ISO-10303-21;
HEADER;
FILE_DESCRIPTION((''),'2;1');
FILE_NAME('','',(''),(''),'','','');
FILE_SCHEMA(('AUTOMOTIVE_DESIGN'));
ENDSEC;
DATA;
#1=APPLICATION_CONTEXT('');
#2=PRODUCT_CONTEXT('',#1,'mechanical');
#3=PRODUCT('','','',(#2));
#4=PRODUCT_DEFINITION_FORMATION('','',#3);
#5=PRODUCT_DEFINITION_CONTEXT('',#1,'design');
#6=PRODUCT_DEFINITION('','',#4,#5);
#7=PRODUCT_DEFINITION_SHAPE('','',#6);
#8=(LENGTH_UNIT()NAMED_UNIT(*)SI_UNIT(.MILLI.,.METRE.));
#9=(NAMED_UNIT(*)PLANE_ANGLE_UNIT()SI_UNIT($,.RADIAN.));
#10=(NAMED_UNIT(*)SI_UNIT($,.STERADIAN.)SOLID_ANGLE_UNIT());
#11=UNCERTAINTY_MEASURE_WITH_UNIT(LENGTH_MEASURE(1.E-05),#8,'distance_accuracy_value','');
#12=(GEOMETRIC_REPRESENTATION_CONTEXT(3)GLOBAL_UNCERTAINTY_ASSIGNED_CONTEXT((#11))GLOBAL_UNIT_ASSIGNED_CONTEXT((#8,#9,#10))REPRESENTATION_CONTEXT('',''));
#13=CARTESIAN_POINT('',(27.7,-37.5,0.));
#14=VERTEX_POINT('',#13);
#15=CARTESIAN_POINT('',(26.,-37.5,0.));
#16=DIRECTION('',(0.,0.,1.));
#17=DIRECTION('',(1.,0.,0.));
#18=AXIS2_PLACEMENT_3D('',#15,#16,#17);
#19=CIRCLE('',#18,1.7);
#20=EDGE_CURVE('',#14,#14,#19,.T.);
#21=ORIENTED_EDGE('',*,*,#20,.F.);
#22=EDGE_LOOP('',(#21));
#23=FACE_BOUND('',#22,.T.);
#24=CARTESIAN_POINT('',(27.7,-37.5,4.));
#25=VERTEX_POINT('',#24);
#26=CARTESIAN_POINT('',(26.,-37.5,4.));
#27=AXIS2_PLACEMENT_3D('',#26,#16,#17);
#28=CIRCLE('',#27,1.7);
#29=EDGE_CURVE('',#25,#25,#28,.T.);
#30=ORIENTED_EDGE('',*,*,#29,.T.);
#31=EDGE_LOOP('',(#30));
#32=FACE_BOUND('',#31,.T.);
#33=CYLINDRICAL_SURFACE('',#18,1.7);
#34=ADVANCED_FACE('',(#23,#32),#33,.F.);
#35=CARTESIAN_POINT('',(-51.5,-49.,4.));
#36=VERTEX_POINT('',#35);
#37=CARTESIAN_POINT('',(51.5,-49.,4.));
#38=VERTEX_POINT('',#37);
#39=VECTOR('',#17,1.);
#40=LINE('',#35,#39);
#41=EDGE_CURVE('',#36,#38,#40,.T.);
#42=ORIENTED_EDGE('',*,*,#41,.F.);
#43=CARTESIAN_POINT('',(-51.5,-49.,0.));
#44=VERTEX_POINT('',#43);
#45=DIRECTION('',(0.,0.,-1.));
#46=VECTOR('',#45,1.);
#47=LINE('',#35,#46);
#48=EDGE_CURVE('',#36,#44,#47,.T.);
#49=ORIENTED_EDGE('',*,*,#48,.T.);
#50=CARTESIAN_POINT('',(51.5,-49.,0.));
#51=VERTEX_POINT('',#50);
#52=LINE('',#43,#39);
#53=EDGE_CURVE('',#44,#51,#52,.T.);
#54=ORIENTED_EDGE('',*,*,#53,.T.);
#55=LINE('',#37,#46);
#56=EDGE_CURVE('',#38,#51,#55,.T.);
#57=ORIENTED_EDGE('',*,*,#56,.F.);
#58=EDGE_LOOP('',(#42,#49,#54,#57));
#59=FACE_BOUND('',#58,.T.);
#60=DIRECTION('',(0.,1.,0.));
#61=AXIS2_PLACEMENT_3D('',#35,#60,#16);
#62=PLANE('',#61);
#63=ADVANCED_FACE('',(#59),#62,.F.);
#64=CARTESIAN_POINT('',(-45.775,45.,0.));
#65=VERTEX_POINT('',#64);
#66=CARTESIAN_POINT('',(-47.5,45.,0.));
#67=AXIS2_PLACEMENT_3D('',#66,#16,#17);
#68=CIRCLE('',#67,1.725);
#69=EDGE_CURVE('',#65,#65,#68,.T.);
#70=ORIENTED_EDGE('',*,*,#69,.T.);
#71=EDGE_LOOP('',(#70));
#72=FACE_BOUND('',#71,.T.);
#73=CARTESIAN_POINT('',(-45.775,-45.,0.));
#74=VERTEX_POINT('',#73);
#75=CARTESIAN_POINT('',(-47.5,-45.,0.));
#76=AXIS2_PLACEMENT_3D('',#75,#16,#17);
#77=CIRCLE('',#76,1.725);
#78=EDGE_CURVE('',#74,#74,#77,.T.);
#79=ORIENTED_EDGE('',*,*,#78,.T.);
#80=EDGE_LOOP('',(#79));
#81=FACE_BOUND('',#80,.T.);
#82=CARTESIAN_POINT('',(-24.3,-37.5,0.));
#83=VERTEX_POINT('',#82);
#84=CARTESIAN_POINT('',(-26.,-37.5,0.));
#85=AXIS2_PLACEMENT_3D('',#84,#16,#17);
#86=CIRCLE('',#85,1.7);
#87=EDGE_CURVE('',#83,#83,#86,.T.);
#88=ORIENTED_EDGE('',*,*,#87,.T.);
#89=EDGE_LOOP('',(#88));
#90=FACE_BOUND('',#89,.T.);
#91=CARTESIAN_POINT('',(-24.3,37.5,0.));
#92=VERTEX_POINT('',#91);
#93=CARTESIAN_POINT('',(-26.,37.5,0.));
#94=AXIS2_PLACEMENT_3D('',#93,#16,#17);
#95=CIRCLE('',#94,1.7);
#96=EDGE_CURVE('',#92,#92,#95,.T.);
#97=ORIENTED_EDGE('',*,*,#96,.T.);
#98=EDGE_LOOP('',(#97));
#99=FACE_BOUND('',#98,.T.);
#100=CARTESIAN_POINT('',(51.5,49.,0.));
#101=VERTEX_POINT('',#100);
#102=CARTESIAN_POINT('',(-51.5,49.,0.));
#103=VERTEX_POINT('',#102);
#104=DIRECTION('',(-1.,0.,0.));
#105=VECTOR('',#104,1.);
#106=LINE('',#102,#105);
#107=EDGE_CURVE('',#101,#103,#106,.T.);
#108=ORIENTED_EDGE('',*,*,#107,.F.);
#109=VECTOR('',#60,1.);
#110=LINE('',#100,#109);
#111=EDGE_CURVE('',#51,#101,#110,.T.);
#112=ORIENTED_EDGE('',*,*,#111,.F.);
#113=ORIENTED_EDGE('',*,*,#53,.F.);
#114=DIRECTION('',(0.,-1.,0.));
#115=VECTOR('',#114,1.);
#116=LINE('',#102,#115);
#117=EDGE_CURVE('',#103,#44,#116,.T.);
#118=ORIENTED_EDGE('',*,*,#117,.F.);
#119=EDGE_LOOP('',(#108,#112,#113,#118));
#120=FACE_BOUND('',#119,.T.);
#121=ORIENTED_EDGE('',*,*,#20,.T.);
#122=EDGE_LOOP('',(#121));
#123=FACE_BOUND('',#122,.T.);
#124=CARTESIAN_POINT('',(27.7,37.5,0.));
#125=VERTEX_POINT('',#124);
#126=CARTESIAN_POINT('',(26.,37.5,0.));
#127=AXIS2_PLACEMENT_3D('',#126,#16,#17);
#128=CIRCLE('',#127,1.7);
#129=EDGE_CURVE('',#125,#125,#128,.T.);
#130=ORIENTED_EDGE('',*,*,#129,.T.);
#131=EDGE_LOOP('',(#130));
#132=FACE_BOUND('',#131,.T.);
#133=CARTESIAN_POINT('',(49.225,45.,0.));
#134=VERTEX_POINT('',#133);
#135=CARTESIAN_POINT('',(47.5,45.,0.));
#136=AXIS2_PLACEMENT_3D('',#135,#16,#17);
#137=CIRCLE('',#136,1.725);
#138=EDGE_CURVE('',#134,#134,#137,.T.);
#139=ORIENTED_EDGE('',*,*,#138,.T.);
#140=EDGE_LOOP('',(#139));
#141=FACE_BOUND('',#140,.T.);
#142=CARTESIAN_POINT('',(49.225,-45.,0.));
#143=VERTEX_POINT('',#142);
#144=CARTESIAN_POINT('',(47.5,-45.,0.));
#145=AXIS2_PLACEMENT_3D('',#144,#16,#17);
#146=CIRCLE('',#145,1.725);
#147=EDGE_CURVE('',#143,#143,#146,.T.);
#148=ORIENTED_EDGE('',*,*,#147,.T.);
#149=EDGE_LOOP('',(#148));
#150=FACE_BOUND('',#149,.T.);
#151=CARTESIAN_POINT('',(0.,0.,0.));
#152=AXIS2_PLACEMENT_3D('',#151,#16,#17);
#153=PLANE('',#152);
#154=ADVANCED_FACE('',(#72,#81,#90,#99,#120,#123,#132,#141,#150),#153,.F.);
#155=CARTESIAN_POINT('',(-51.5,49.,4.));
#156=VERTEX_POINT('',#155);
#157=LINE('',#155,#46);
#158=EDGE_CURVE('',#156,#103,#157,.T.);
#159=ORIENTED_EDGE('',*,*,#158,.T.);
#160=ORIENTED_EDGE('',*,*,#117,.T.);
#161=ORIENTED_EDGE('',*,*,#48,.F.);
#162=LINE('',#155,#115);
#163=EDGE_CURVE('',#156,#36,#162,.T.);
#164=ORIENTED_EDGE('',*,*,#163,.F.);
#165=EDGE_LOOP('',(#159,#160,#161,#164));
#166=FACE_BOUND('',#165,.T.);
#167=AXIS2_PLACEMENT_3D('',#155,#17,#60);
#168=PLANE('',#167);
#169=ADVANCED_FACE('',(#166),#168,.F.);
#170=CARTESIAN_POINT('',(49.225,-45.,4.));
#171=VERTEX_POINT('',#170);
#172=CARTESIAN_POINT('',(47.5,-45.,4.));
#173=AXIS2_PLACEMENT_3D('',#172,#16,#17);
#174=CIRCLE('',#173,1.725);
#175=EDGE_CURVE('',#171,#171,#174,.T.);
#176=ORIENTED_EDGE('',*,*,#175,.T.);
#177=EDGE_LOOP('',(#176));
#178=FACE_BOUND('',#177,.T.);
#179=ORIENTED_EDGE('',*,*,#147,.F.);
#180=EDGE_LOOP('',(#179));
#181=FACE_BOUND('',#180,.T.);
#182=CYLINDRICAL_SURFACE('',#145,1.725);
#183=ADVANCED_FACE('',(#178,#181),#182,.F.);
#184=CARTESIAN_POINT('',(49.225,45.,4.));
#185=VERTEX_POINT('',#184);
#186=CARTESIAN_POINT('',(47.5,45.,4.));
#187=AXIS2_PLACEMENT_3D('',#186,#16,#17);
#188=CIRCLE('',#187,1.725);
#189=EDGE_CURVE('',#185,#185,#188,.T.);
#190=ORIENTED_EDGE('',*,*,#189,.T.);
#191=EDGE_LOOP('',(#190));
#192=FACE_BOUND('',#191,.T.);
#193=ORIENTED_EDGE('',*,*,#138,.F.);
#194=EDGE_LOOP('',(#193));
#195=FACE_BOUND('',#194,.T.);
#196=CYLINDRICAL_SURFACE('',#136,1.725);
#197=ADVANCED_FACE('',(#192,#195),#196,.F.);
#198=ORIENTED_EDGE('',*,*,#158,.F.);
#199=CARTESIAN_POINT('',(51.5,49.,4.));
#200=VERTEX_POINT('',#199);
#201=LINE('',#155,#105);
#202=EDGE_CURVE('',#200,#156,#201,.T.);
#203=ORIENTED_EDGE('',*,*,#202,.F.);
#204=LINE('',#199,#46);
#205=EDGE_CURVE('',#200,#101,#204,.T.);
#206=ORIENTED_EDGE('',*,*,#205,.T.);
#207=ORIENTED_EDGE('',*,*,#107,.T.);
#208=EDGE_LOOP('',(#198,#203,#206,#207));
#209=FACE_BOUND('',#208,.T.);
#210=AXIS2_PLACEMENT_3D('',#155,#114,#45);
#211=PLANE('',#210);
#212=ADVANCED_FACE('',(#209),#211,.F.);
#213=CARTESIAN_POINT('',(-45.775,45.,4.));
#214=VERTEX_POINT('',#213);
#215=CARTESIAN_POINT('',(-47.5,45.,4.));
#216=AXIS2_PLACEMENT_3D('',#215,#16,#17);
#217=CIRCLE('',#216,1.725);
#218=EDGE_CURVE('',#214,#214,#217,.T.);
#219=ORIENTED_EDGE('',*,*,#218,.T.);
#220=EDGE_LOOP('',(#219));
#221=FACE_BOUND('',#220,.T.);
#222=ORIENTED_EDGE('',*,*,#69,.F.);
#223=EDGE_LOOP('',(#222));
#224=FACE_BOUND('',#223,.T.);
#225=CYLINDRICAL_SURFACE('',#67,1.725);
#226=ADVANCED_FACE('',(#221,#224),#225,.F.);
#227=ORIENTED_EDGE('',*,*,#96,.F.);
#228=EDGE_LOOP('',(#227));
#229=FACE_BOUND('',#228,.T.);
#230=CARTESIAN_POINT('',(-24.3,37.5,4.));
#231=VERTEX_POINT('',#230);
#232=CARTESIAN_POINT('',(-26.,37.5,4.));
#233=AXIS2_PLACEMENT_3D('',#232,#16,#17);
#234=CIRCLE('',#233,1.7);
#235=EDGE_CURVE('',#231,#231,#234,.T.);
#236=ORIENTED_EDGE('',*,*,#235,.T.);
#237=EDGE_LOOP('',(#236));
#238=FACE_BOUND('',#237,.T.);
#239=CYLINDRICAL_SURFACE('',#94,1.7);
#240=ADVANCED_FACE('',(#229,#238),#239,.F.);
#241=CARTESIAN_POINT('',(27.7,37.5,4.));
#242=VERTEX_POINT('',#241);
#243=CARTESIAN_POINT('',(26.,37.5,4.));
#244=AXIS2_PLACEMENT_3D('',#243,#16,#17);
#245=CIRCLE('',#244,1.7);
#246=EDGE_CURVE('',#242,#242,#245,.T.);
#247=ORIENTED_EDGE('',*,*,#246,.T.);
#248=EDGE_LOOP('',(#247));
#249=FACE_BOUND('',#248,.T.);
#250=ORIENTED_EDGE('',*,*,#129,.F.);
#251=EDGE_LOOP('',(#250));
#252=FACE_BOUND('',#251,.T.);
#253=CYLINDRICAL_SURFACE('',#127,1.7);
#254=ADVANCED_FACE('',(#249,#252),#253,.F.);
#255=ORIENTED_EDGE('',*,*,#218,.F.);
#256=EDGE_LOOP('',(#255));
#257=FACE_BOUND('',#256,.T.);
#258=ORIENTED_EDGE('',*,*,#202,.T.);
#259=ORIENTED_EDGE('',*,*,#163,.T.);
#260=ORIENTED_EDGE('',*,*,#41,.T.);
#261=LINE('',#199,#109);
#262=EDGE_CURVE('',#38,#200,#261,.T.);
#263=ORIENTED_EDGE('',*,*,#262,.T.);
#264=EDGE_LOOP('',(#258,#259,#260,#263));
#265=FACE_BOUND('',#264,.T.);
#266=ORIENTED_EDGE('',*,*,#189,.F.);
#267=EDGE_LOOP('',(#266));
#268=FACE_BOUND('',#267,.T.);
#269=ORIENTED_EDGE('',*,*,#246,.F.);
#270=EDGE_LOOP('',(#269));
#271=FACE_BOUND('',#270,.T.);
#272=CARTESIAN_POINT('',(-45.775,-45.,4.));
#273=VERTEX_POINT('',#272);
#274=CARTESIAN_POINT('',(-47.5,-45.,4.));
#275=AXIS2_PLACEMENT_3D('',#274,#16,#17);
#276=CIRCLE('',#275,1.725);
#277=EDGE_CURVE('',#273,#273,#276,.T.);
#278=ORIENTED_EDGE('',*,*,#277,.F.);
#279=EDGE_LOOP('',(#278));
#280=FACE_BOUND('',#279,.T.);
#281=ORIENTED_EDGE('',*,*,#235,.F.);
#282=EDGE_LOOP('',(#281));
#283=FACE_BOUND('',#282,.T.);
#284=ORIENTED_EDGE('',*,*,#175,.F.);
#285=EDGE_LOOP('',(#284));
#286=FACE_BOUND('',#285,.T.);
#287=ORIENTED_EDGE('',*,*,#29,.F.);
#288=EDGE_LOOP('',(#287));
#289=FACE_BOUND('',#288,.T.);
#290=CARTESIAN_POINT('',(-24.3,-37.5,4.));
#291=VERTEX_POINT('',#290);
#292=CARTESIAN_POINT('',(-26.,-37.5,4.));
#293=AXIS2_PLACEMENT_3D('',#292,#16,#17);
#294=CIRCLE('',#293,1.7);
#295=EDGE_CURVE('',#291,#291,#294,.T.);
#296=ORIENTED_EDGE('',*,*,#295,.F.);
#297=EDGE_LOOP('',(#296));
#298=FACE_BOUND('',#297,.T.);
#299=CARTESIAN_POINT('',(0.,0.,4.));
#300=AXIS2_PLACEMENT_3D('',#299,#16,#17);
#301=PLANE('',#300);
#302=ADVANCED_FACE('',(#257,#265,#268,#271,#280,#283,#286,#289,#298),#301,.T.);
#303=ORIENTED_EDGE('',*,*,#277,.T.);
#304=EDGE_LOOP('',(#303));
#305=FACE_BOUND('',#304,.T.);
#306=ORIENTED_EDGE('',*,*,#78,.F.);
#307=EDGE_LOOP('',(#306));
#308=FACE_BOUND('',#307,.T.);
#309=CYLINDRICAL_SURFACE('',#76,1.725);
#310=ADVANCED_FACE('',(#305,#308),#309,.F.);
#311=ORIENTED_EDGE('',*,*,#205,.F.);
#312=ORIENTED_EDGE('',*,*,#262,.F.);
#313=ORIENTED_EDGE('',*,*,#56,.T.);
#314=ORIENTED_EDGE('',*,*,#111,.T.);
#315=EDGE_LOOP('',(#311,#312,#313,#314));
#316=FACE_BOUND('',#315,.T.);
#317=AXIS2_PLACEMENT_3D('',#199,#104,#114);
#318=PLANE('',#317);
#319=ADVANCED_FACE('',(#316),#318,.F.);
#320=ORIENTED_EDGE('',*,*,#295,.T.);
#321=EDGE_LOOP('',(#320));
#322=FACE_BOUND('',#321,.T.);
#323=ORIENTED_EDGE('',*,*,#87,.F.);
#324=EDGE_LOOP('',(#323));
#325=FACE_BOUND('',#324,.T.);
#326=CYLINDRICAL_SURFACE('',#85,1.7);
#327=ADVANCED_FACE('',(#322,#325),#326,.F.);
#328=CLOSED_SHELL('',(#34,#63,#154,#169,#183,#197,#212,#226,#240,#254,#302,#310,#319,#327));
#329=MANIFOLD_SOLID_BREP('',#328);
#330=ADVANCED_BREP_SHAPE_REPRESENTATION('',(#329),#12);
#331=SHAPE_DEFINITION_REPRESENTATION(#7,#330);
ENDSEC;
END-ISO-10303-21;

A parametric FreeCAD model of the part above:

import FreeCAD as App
import Part
import Sketcher
from FreeCAD import Vector
Q = App.Units.Quantity


def add_polygon(sketch, points):
    """Adds a closed chain of lines whose ends are joined by coincident constraints."""
    first, n = sketch.GeometryCount, len(points)
    for a, b in zip(points, points[1:] + points[:1]):
        sketch.addGeometry(Part.LineSegment(App.Vector(*a, 0), App.Vector(*b, 0)), False)
    for i in range(n):
        sketch.addConstraint(Sketcher.Constraint("Coincident", first + i, 2, first + (i + 1) % n, 1))

doc = App.newDocument("Part")
params = doc.addObject("Spreadsheet::Sheet", "Params")
for row, (alias, value) in enumerate([
    ("sketch1_width", "103 mm"),
    ("sketch1_height", "98 mm"),
    ("pad1_length", "4 mm"),
    ("sketch2_diameter", "3.45 mm"),
    ("pocket1_length", "4 mm"),
    ("sketch3_diameter", "3.4 mm"),
    ("pocket2_length", "4 mm"),
], start=1):
    params.set(f"A{row}", alias)
    params.set(f"B{row}", "=" + value)
    params.setAlias(f"B{row}", alias)

body = doc.addObject("PartDesign::Body", "Body")

sketch1 = doc.addObject("Sketcher::SketchObject", "Sketch")
body.addObject(sketch1)
sketch1.AttachmentSupport = (doc.XY_Plane, [""])
sketch1.MapMode = "FlatFace"
add_polygon(sketch1, [(-51.5, 49), (-51.5, -49), (51.5, -49), (51.5, 49)])
sketch1.addConstraint(Sketcher.Constraint("Vertical", 0))
sketch1.addConstraint(Sketcher.Constraint("Horizontal", 1))
sketch1.addConstraint(Sketcher.Constraint("Vertical", 2))
sketch1.addConstraint(Sketcher.Constraint("Horizontal", 3))
sketch1.addConstraint(Sketcher.Constraint("Symmetric", 0, 2, 2, 2, -1, 1))
sketch1.addConstraint(Sketcher.Constraint("DistanceX", 1, 1, 1, 2, Q("103 mm")))
sketch1.addConstraint(Sketcher.Constraint("DistanceY", 0, 2, 0, 1, Q("98 mm")))
sketch1.setExpression("Constraints[9]", "Params.sketch1_width")
sketch1.setExpression("Constraints[10]", "Params.sketch1_height")
pad1 = doc.addObject("PartDesign::Pad", "Pad")
body.addObject(pad1)
pad1.Profile = sketch1
pad1.setExpression("Length", "Params.pad1_length")

sketch2 = doc.addObject("Sketcher::SketchObject", "Sketch001")
body.addObject(sketch2)
sketch2.AttachmentSupport = (doc.XY_Plane, [""])
sketch2.MapMode = "FlatFace"
sketch2.AttachmentOffset = App.Placement(Vector(0, 0, 4), App.Rotation())
sketch2.addGeometry(Part.Circle(Vector(-47.5, 45, 0), Vector(0, 0, 1), 1.725), False)
sketch2.addGeometry(Part.Circle(Vector(47.5, 45, 0), Vector(0, 0, 1), 1.725), False)
sketch2.addGeometry(Part.Circle(Vector(47.5, -45, 0), Vector(0, 0, 1), 1.725), False)
sketch2.addGeometry(Part.Circle(Vector(-47.5, -45, 0), Vector(0, 0, 1), 1.725), False)
sketch2.addConstraint(Sketcher.Constraint("Equal", 0, 1))
sketch2.addConstraint(Sketcher.Constraint("Equal", 1, 2))
sketch2.addConstraint(Sketcher.Constraint("Equal", 2, 3))
sketch2.addConstraint(Sketcher.Constraint("Symmetric", 0, 3, 2, 3, -1, 1))
sketch2.addConstraint(Sketcher.Constraint("Symmetric", 1, 3, 3, 3, -1, 1))
sketch2.addConstraint(Sketcher.Constraint("Symmetric", 0, 3, 1, 3, -2))
sketch2.addConstraint(Sketcher.Constraint("Diameter", 0, Q("3.45 mm")))
sketch2.addConstraint(Sketcher.Constraint("DistanceY", -1, 1, 0, 3, Q("45 mm")))
sketch2.addConstraint(Sketcher.Constraint("DistanceX", 0, 3, 1, 3, Q("95 mm")))
sketch2.setExpression("Constraints[6]", "Params.sketch2_diameter")
pocket1 = doc.addObject("PartDesign::Pocket", "Pocket")
body.addObject(pocket1)
pocket1.Profile = sketch2
pocket1.setExpression("Length", "Params.pocket1_length")

sketch3 = doc.addObject("Sketcher::SketchObject", "Sketch002")
body.addObject(sketch3)
sketch3.AttachmentSupport = (doc.XY_Plane, [""])
sketch3.MapMode = "FlatFace"
sketch3.AttachmentOffset = App.Placement(Vector(0, 0, 4), App.Rotation())
sketch3.addGeometry(Part.Circle(Vector(-26, 37.5, 0), Vector(0, 0, 1), 1.7), False)
sketch3.addGeometry(Part.Circle(Vector(26, 37.5, 0), Vector(0, 0, 1), 1.7), False)
sketch3.addGeometry(Part.Circle(Vector(-26, -37.5, 0), Vector(0, 0, 1), 1.7), False)
sketch3.addGeometry(Part.Circle(Vector(26, -37.5, 0), Vector(0, 0, 1), 1.7), False)
sketch3.addConstraint(Sketcher.Constraint("Equal", 0, 1))
sketch3.addConstraint(Sketcher.Constraint("Equal", 1, 2))
sketch3.addConstraint(Sketcher.Constraint("Equal", 2, 3))
sketch3.addConstraint(Sketcher.Constraint("Symmetric", 1, 3, 2, 3, -1, 1))
sketch3.addConstraint(Sketcher.Constraint("Symmetric", 0, 3, 3, 3, -1, 1))
sketch3.addConstraint(Sketcher.Constraint("Symmetric", 0, 3, 1, 3, -2))
sketch3.addConstraint(Sketcher.Constraint("Diameter", 0, Q("3.4 mm")))
sketch3.addConstraint(Sketcher.Constraint("DistanceX", 0, 3, -1, 1, Q("26 mm")))
sketch3.addConstraint(Sketcher.Constraint("DistanceY", 2, 3, 0, 3, Q("75 mm")))
sketch3.setExpression("Constraints[6]", "Params.sketch3_diameter")
pocket2 = doc.addObject("PartDesign::Pocket", "Pocket001")
body.addObject(pocket2)
pocket2.Profile = sketch3
pocket2.setExpression("Length", "Params.pocket2_length")

doc.recompute()
